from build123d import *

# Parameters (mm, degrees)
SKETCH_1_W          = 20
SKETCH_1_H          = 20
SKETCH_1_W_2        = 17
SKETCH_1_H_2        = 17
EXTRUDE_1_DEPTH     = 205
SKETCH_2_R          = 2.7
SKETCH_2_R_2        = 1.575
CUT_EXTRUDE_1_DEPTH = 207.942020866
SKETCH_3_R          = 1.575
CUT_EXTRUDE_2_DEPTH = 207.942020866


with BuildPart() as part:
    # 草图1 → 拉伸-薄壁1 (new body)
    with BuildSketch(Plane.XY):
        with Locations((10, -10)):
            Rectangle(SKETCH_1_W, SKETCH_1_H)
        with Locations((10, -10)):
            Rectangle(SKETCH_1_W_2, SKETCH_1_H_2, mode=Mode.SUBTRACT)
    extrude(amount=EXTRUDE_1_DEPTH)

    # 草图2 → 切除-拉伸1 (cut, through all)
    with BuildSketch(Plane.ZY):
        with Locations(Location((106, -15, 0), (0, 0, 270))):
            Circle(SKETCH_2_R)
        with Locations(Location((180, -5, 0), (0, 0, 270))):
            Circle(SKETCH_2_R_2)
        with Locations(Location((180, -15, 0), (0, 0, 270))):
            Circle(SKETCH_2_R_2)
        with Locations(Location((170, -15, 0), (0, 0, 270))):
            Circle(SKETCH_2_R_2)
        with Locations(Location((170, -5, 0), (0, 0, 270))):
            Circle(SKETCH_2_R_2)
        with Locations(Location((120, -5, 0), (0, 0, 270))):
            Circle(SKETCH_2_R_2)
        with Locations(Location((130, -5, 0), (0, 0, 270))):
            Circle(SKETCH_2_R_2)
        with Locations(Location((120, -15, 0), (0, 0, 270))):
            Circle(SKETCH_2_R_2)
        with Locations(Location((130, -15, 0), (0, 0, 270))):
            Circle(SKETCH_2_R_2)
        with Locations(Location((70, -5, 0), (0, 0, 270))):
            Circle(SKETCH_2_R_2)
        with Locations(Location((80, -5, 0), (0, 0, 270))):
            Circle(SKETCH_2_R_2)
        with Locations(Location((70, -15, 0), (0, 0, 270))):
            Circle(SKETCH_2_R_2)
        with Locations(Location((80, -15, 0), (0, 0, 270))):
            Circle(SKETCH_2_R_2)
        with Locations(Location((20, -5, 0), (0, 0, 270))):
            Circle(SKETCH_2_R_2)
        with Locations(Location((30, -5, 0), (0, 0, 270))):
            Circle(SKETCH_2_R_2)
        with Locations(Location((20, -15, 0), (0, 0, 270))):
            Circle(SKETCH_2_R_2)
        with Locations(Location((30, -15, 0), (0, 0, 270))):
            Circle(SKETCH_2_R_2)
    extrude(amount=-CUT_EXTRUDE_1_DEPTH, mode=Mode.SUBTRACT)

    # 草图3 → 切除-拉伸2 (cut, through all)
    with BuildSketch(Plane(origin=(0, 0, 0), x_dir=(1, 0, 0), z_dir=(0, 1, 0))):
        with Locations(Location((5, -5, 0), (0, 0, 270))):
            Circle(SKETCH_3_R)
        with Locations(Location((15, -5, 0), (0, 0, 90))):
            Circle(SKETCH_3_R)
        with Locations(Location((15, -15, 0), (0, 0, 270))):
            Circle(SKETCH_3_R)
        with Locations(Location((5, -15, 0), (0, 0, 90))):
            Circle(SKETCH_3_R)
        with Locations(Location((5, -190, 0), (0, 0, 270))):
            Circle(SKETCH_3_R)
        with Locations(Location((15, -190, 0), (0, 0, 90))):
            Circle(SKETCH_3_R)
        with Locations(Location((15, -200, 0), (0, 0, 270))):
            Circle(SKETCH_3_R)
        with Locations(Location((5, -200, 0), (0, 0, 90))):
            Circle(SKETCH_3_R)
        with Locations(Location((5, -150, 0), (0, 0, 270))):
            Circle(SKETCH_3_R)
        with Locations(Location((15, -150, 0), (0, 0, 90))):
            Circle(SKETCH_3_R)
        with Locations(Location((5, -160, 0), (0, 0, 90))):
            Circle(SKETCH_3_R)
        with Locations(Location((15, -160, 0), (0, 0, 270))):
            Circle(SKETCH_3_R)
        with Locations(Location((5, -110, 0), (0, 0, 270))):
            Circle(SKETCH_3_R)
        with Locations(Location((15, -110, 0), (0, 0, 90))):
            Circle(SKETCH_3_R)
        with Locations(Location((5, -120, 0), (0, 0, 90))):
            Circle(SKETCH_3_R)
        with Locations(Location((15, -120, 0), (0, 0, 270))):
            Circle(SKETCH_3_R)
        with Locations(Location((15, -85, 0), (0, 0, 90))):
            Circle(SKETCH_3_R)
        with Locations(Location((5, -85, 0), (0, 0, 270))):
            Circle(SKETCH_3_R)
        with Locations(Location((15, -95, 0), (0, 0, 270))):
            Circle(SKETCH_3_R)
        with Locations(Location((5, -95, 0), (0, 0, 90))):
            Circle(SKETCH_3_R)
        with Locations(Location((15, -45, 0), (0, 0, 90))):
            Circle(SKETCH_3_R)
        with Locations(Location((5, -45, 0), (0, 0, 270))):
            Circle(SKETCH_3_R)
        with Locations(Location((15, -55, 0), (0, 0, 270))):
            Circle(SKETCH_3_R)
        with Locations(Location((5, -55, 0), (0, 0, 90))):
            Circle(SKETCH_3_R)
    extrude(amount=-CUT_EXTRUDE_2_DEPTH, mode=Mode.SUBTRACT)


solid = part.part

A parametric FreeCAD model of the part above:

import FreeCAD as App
import Part
import Sketcher
from FreeCAD import Vector

doc = App.newDocument("Part")
params = doc.addObject("Spreadsheet::Sheet", "Params")
for row, (alias, value) in enumerate([
    ("sketch1_width", "20 mm"),
    ("sketch1_width2", "17 mm"),
    ("pad1_length", "205 mm"),
    ("sketch2_diameter", "5.4 mm"),
    ("sketch2_diameter2", "3.15 mm"),
    ("sketch3_diameter", "3.15 mm"),
], start=1):
    params.set(f"A{row}", alias)
    params.set(f"B{row}", "=" + value)
    params.setAlias(f"B{row}", alias)

body = doc.addObject("PartDesign::Body", "Body")

# Sketch on XY plane
sketch1 = body.newObject("Sketcher::SketchObject", "Sketch")
sketch1.AttachmentSupport = (doc.getObject("XY_Plane"), [""])
sketch1.MapMode = "FlatFace"
sketch1.addGeometry([
    Part.LineSegment(Vector(0, 0, 0), Vector(0, -20, 0)),  # 0
    Part.LineSegment(Vector(0, -20, 0), Vector(20, -20, 0)),  # 1
    Part.LineSegment(Vector(20, -20, 0), Vector(20, 0, 0)),  # 2
    Part.LineSegment(Vector(20, 0, 0), Vector(0, 0, 0)),  # 3
    Part.LineSegment(Vector(18.5, -18.5, 0), Vector(1.5, -18.5, 0)),  # 4
    Part.LineSegment(Vector(1.5, -18.5, 0), Vector(1.5, -1.5, 0)),  # 5
    Part.LineSegment(Vector(1.5, -1.5, 0), Vector(18.5, -1.5, 0)),  # 6
    Part.LineSegment(Vector(18.5, -1.5, 0), Vector(18.5, -18.5, 0)),  # 7
], False)
sketch1.addConstraint([
    Sketcher.Constraint("Coincident", 0, 2, 1, 1),
    Sketcher.Constraint("Coincident", 1, 2, 2, 1),
    Sketcher.Constraint("Coincident", 2, 2, 3, 1),
    Sketcher.Constraint("Coincident", 3, 2, 0, 1),
    Sketcher.Constraint("Coincident", 4, 2, 5, 1),
    Sketcher.Constraint("Coincident", 5, 2, 6, 1),
    Sketcher.Constraint("Coincident", 6, 2, 7, 1),
    Sketcher.Constraint("Coincident", 7, 2, 4, 1),
    Sketcher.Constraint("Vertical", 0),
    Sketcher.Constraint("Horizontal", 1),
    Sketcher.Constraint("Vertical", 2),
    Sketcher.Constraint("Horizontal", 3),
    Sketcher.Constraint("Horizontal", 4),
    Sketcher.Constraint("Vertical", 5),
    Sketcher.Constraint("Horizontal", 6),
    Sketcher.Constraint("Vertical", 7),
    Sketcher.Constraint("Coincident", 3, 2, -1, 1),
    Sketcher.Constraint("Equal", 3, 0),
    Sketcher.Constraint("Equal", 6, 5),
    Sketcher.Constraint("DistanceX", 1, 1, 1, 2, 20.0),
    Sketcher.Constraint("DistanceX", 4, 2, 4, 1, 17.0),
    Sketcher.Constraint("DistanceX", -1, 1, 4, 2, 1.5),
    Sketcher.Constraint("DistanceY", 4, 2, -1, 1, 18.5),
])
sketch1.setExpression("Constraints[19]", "Params.sketch1_width")
sketch1.setExpression("Constraints[20]", "Params.sketch1_width2")
pad1 = body.newObject("PartDesign::Pad", "Pad")
pad1.Profile = sketch1
pad1.setExpression("Length", "Params.pad1_length")

# Sketch on YZ plane
sketch2 = body.newObject("Sketcher::SketchObject", "Sketch001")
sketch2.AttachmentSupport = (doc.getObject("YZ_Plane"), [""])
sketch2.MapMode = "FlatFace"
sketch2.addGeometry([
    Part.Circle(Vector(-15, 106, 0), Vector(0, 0, 1), 2.7),  # 0
    Part.Circle(Vector(-5, 180, 0), Vector(0, 0, 1), 1.575),  # 1
    Part.Circle(Vector(-15, 180, 0), Vector(0, 0, 1), 1.575),  # 2
    Part.Circle(Vector(-15, 170, 0), Vector(0, 0, 1), 1.575),  # 3
    Part.Circle(Vector(-5, 170, 0), Vector(0, 0, 1), 1.575),  # 4
    Part.Circle(Vector(-5, 120, 0), Vector(0, 0, 1), 1.575),  # 5
    Part.Circle(Vector(-5, 130, 0), Vector(0, 0, 1), 1.575),  # 6
    Part.Circle(Vector(-15, 120, 0), Vector(0, 0, 1), 1.575),  # 7
    Part.Circle(Vector(-15, 130, 0), Vector(0, 0, 1), 1.575),  # 8
    Part.Circle(Vector(-5, 70, 0), Vector(0, 0, 1), 1.575),  # 9
    Part.Circle(Vector(-5, 80, 0), Vector(0, 0, 1), 1.575),  # 10
    Part.Circle(Vector(-15, 70, 0), Vector(0, 0, 1), 1.575),  # 11
    Part.Circle(Vector(-15, 80, 0), Vector(0, 0, 1), 1.575),  # 12
    Part.Circle(Vector(-5, 20, 0), Vector(0, 0, 1), 1.575),  # 13
    Part.Circle(Vector(-5, 30, 0), Vector(0, 0, 1), 1.575),  # 14
    Part.Circle(Vector(-15, 20, 0), Vector(0, 0, 1), 1.575),  # 15
    Part.Circle(Vector(-15, 30, 0), Vector(0, 0, 1), 1.575),  # 16
], False)
sketch2.addConstraint([
    Sketcher.Constraint("Equal", 1, 2),
    Sketcher.Constraint("Equal", 2, 3),
    Sketcher.Constraint("Equal", 3, 4),
    Sketcher.Constraint("Equal", 4, 5),
    Sketcher.Constraint("Equal", 5, 6),
    Sketcher.Constraint("Equal", 6, 7),
    Sketcher.Constraint("Equal", 7, 8),
    Sketcher.Constraint("Equal", 8, 9),
    Sketcher.Constraint("Equal", 9, 10),
    Sketcher.Constraint("Equal", 10, 11),
    Sketcher.Constraint("Equal", 11, 12),
    Sketcher.Constraint("Equal", 12, 13),
    Sketcher.Constraint("Equal", 13, 14),
    Sketcher.Constraint("Equal", 14, 15),
    Sketcher.Constraint("Equal", 15, 16),
    Sketcher.Constraint("Horizontal", 1, 3, 2, 3),
    Sketcher.Constraint("Horizontal", 3, 3, 4, 3),
    Sketcher.Constraint("Horizontal", 5, 3, 7, 3),
    Sketcher.Constraint("Horizontal", 6, 3, 8, 3),
    Sketcher.Constraint("Horizontal", 9, 3, 11, 3),
    Sketcher.Constraint("Horizontal", 10, 3, 12, 3),
    Sketcher.Constraint("Horizontal", 13, 3, 15, 3),
    Sketcher.Constraint("Horizontal", 14, 3, 16, 3),
    Sketcher.Constraint("Vertical", 0, 3, 2, 3),
    Sketcher.Constraint("Vertical", 2, 3, 3, 3),
    Sketcher.Constraint("Vertical", 1, 3, 4, 3),
    Sketcher.Constraint("Vertical", 4, 3, 5, 3),
    Sketcher.Constraint("Vertical", 5, 3, 6, 3),
    Sketcher.Constraint("Vertical", 3, 3, 7, 3),
    Sketcher.Constraint("Vertical", 7, 3, 8, 3),
    Sketcher.Constraint("Vertical", 6, 3, 9, 3),
    Sketcher.Constraint("Vertical", 9, 3, 10, 3),
    Sketcher.Constraint("Vertical", 8, 3, 11, 3),
    Sketcher.Constraint("Vertical", 11, 3, 12, 3),
    Sketcher.Constraint("Vertical", 10, 3, 13, 3),
    Sketcher.Constraint("Vertical", 13, 3, 14, 3),
    Sketcher.Constraint("Vertical", 12, 3, 15, 3),
    Sketcher.Constraint("Vertical", 15, 3, 16, 3),
    Sketcher.Constraint("Diameter", 0, 5.4),
    Sketcher.Constraint("Diameter", 1, 3.15),
    Sketcher.Constraint("DistanceX", 0, 3, -1, 1, 15.0),
    Sketcher.Constraint("DistanceY", -1, 1, 0, 3, 106.0),
    Sketcher.Constraint("DistanceX", 1, 3, -1, 1, 5.0),
    Sketcher.Constraint("DistanceY", -1, 1, 1, 3, 180.0),
    Sketcher.Constraint("DistanceY", -1, 1, 3, 3, 170.0),
    Sketcher.Constraint("DistanceY", -1, 1, 5, 3, 120.0),
    Sketcher.Constraint("DistanceY", -1, 1, 6, 3, 130.0),
    Sketcher.Constraint("DistanceY", -1, 1, 9, 3, 70.0),
    Sketcher.Constraint("DistanceY", -1, 1, 10, 3, 80.0),
    Sketcher.Constraint("DistanceY", -1, 1, 13, 3, 20.0),
    Sketcher.Constraint("DistanceY", -1, 1, 14, 3, 30.0),
])
sketch2.setExpression("Constraints[38]", "Params.sketch2_diameter")
sketch2.setExpression("Constraints[39]", "Params.sketch2_diameter2")
pocket1 = body.newObject("PartDesign::Pocket", "Pocket")
pocket1.Profile = sketch2
pocket1.Type = "ThroughAll"
pocket1.Reversed = True

# Sketch on XZ plane
sketch3 = body.newObject("Sketcher::SketchObject", "Sketch002")
sketch3.AttachmentSupport = (doc.getObject("XZ_Plane"), [""])
sketch3.MapMode = "FlatFace"
sketch3.addGeometry([
    Part.Circle(Vector(5, 5, 0), Vector(0, 0, 1), 1.575),  # 0
    Part.Circle(Vector(15, 5, 0), Vector(0, 0, 1), 1.575),  # 1
    Part.Circle(Vector(15, 15, 0), Vector(0, 0, 1), 1.575),  # 2
    Part.Circle(Vector(5, 15, 0), Vector(0, 0, 1), 1.575),  # 3
    Part.Circle(Vector(5, 190, 0), Vector(0, 0, 1), 1.575),  # 4
    Part.Circle(Vector(15, 190, 0), Vector(0, 0, 1), 1.575),  # 5
    Part.Circle(Vector(15, 200, 0), Vector(0, 0, 1), 1.575),  # 6
    Part.Circle(Vector(5, 200, 0), Vector(0, 0, 1), 1.575),  # 7
    Part.Circle(Vector(5, 150, 0), Vector(0, 0, 1), 1.575),  # 8
    Part.Circle(Vector(15, 150, 0), Vector(0, 0, 1), 1.575),  # 9
    Part.Circle(Vector(5, 160, 0), Vector(0, 0, 1), 1.575),  # 10
    Part.Circle(Vector(15, 160, 0), Vector(0, 0, 1), 1.575),  # 11
    Part.Circle(Vector(5, 110, 0), Vector(0, 0, 1), 1.575),  # 12
    Part.Circle(Vector(15, 110, 0), Vector(0, 0, 1), 1.575),  # 13
    Part.Circle(Vector(5, 120, 0), Vector(0, 0, 1), 1.575),  # 14
    Part.Circle(Vector(15, 120, 0), Vector(0, 0, 1), 1.575),  # 15
    Part.Circle(Vector(15, 85, 0), Vector(0, 0, 1), 1.575),  # 16
    Part.Circle(Vector(5, 85, 0), Vector(0, 0, 1), 1.575),  # 17
    Part.Circle(Vector(15, 95, 0), Vector(0, 0, 1), 1.575),  # 18
    Part.Circle(Vector(5, 95, 0), Vector(0, 0, 1), 1.575),  # 19
    Part.Circle(Vector(15, 45, 0), Vector(0, 0, 1), 1.575),  # 20
    Part.Circle(Vector(5, 45, 0), Vector(0, 0, 1), 1.575),  # 21
    Part.Circle(Vector(15, 55, 0), Vector(0, 0, 1), 1.575),  # 22
    Part.Circle(Vector(5, 55, 0), Vector(0, 0, 1), 1.575),  # 23
], False)
sketch3.addConstraint([
    Sketcher.Constraint("Equal", 0, 1),
    Sketcher.Constraint("Equal", 1, 2),
    Sketcher.Constraint("Equal", 2, 3),
    Sketcher.Constraint("Equal", 3, 4),
    Sketcher.Constraint("Equal", 4, 5),
    Sketcher.Constraint("Equal", 5, 6),
    Sketcher.Constraint("Equal", 6, 7),
    Sketcher.Constraint("Equal", 7, 8),
    Sketcher.Constraint("Equal", 8, 9),
    Sketcher.Constraint("Equal", 9, 10),
    Sketcher.Constraint("Equal", 10, 11),
    Sketcher.Constraint("Equal", 11, 12),
    Sketcher.Constraint("Equal", 12, 13),
    Sketcher.Constraint("Equal", 13, 14),
    Sketcher.Constraint("Equal", 14, 15),
    Sketcher.Constraint("Equal", 15, 16),
    Sketcher.Constraint("Equal", 16, 17),
    Sketcher.Constraint("Equal", 17, 18),
    Sketcher.Constraint("Equal", 18, 19),
    Sketcher.Constraint("Equal", 19, 20),
    Sketcher.Constraint("Equal", 20, 21),
    Sketcher.Constraint("Equal", 21, 22),
    Sketcher.Constraint("Equal", 22, 23),
    Sketcher.Constraint("Horizontal", 0, 3, 1, 3),
    Sketcher.Constraint("Horizontal", 2, 3, 3, 3),
    Sketcher.Constraint("Horizontal", 4, 3, 5, 3),
    Sketcher.Constraint("Horizontal", 6, 3, 7, 3),
    Sketcher.Constraint("Horizontal", 8, 3, 9, 3),
    Sketcher.Constraint("Horizontal", 10, 3, 11, 3),
    Sketcher.Constraint("Horizontal", 12, 3, 13, 3),
    Sketcher.Constraint("Horizontal", 14, 3, 15, 3),
    Sketcher.Constraint("Horizontal", 16, 3, 17, 3),
    Sketcher.Constraint("Horizontal", 18, 3, 19, 3),
    Sketcher.Constraint("Horizontal", 20, 3, 21, 3),
    Sketcher.Constraint("Horizontal", 22, 3, 23, 3),
    Sketcher.Constraint("Vertical", 1, 3, 2, 3),
    Sketcher.Constraint("Vertical", 0, 3, 3, 3),
    Sketcher.Constraint("Vertical", 3, 3, 4, 3),
    Sketcher.Constraint("Vertical", 2, 3, 5, 3),
    Sketcher.Constraint("Vertical", 5, 3, 6, 3),
    Sketcher.Constraint("Vertical", 4, 3, 7, 3),
    Sketcher.Constraint("Vertical", 7, 3, 8, 3),
    Sketcher.Constraint("Vertical", 6, 3, 9, 3),
    Sketcher.Constraint("Vertical", 8, 3, 10, 3),
    Sketcher.Constraint("Vertical", 9, 3, 11, 3),
    Sketcher.Constraint("Vertical", 10, 3, 12, 3),
    Sketcher.Constraint("Vertical", 11, 3, 13, 3),
    Sketcher.Constraint("Vertical", 12, 3, 14, 3),
    Sketcher.Constraint("Vertical", 13, 3, 15, 3),
    Sketcher.Constraint("Vertical", 15, 3, 16, 3),
    Sketcher.Constraint("Vertical", 14, 3, 17, 3),
    Sketcher.Constraint("Vertical", 16, 3, 18, 3),
    Sketcher.Constraint("Vertical", 17, 3, 19, 3),
    Sketcher.Constraint("Vertical", 18, 3, 20, 3),
    Sketcher.Constraint("Vertical", 19, 3, 21, 3),
    Sketcher.Constraint("Vertical", 20, 3, 22, 3),
    Sketcher.Constraint("Vertical", 21, 3, 23, 3),
    Sketcher.Constraint("Diameter", 0, 3.15),
    Sketcher.Constraint("DistanceX", -1, 1, 0, 3, 5.0),
    Sketcher.Constraint("DistanceY", -1, 1, 0, 3, 5.0),
    Sketcher.Constraint("DistanceX", -1, 1, 1, 3, 15.0),
    Sketcher.Constraint("DistanceY", -1, 1, 2, 3, 15.0),
    Sketcher.Constraint("DistanceY", -1, 1, 4, 3, 190.0),
    Sketcher.Constraint("DistanceY", -1, 1, 6, 3, 200.0),
    Sketcher.Constraint("DistanceY", -1, 1, 8, 3, 150.0),
    Sketcher.Constraint("DistanceY", -1, 1, 10, 3, 160.0),
    Sketcher.Constraint("DistanceY", -1, 1, 12, 3, 110.0),
    Sketcher.Constraint("DistanceY", -1, 1, 14, 3, 120.0),
    Sketcher.Constraint("DistanceY", -1, 1, 16, 3, 85.0),
    Sketcher.Constraint("DistanceY", -1, 1, 18, 3, 95.0),
    Sketcher.Constraint("DistanceY", -1, 1, 20, 3, 45.0),
    Sketcher.Constraint("DistanceY", -1, 1, 22, 3, 55.0),
])
sketch3.setExpression("Constraints[57]", "Params.sketch3_diameter")
pocket2 = body.newObject("PartDesign::Pocket", "Pocket001")
pocket2.Profile = sketch3
pocket2.Type = "ThroughAll"
pocket2.Reversed = True

doc.recompute()
